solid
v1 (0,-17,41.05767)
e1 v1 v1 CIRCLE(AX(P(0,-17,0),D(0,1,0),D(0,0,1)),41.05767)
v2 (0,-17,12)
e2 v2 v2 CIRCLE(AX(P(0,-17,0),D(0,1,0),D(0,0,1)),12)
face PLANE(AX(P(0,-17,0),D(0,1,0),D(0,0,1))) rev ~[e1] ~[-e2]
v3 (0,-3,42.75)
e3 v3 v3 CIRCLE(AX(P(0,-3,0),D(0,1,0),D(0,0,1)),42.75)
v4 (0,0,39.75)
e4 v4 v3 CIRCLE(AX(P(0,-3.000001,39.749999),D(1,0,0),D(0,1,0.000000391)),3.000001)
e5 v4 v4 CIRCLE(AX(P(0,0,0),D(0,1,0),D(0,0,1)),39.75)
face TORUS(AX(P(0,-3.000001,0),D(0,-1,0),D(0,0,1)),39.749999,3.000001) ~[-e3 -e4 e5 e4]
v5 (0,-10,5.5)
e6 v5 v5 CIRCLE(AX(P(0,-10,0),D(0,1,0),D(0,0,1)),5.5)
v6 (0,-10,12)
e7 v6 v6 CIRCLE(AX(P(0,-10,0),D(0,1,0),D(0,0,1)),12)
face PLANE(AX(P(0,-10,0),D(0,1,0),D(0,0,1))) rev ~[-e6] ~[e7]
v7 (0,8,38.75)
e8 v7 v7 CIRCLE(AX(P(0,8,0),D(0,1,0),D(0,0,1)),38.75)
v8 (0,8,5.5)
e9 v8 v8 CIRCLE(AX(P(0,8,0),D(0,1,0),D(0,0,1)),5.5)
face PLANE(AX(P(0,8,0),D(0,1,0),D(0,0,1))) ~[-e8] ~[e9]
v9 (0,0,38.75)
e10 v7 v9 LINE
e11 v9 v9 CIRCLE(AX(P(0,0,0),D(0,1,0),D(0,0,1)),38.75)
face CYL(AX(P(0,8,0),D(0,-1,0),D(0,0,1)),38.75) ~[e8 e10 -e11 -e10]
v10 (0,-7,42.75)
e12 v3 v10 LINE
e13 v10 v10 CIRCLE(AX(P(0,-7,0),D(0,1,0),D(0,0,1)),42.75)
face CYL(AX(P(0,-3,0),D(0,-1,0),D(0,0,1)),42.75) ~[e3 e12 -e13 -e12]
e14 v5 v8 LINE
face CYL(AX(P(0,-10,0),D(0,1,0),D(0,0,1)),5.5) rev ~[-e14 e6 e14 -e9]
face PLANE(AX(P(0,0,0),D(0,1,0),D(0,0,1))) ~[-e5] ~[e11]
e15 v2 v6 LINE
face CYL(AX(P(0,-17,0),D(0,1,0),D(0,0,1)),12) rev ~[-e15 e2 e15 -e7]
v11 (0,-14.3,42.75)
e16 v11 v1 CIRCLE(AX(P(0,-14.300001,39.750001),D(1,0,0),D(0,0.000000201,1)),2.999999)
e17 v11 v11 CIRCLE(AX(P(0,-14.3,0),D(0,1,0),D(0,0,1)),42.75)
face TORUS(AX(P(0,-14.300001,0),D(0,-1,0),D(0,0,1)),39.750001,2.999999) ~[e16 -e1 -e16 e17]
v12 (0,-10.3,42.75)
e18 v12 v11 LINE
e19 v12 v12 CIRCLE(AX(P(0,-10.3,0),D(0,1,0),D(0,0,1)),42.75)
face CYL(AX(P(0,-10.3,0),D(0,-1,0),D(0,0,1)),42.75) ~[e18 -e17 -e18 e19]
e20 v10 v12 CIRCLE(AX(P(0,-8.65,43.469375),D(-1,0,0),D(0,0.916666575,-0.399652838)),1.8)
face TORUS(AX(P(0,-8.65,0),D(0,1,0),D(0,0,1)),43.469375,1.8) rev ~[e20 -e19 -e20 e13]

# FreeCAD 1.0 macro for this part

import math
import FreeCAD as App
import Part
import Sketcher

V = App.Vector
Q = App.Units.Quantity

doc = App.newDocument("Part")
body = doc.addObject("PartDesign::Body", "Body")

# Sketch on YZ plane
sketch1 = body.newObject("Sketcher::SketchObject", "Sketch")
sketch1.AttachmentSupport = (doc.getObject("YZ_Plane"), [""])
sketch1.MapMode = "FlatFace"
sketch1.addGeometry(Part.LineSegment(V(8, 38.75, 0), V(0, 38.75, 0)), False)
sketch1.addGeometry(Part.LineSegment(V(0, 38.75, 0), V(0, 39.75, 0)), False)
sketch1.addGeometry(Part.ArcOfCircle(Part.Circle(V(-3.000001, 39.749999, 0), V(0, 0, 1), 3.000001), math.radians(0.000022), math.radians(89.999978)), False)
sketch1.addGeometry(Part.LineSegment(V(-3, 42.75, 0), V(-7, 42.75, 0)), False)
sketch1.addGeometry(Part.ArcOfCircle(Part.Circle(V(-8.65, 43.469375, 0), V(0, 0, 1), 1.8), math.radians(-156.443522), math.radians(-23.556478)), False)
sketch1.addGeometry(Part.LineSegment(V(-10.3, 42.75, 0), V(-14.3, 42.75, 0)), False)
sketch1.addGeometry(Part.ArcOfCircle(Part.Circle(V(-14.300001, 39.750001, 0), V(0, 0, 1), 2.999999), math.radians(89.999988), math.radians(154.158069)), False)
sketch1.addGeometry(Part.LineSegment(V(-17, 41.05767, 0), V(-17, 12, 0)), False)
sketch1.addGeometry(Part.LineSegment(V(-17, 12, 0), V(-10, 12, 0)), False)
sketch1.addGeometry(Part.LineSegment(V(-10, 12, 0), V(-10, 5.5, 0)), False)
sketch1.addGeometry(Part.LineSegment(V(-10, 5.5, 0), V(8, 5.5, 0)), False)
sketch1.addGeometry(Part.LineSegment(V(8, 5.5, 0), V(8, 38.75, 0)), False)
sketch1.addConstraint(Sketcher.Constraint("Coincident", 0, 2, 1, 1))
sketch1.addConstraint(Sketcher.Constraint("Tangent", 1, 2, 2, 1))
sketch1.addConstraint(Sketcher.Constraint("Tangent", 2, 2, 3, 1))
sketch1.addConstraint(Sketcher.Constraint("Coincident", 3, 2, 4, 2))
sketch1.addConstraint(Sketcher.Constraint("Coincident", 4, 1, 5, 1))
sketch1.addConstraint(Sketcher.Constraint("Tangent", 5, 2, 6, 1))
sketch1.addConstraint(Sketcher.Constraint("Coincident", 6, 2, 7, 1))
sketch1.addConstraint(Sketcher.Constraint("Coincident", 7, 2, 8, 1))
sketch1.addConstraint(Sketcher.Constraint("Coincident", 8, 2, 9, 1))
sketch1.addConstraint(Sketcher.Constraint("Coincident", 9, 2, 10, 1))
sketch1.addConstraint(Sketcher.Constraint("Coincident", 10, 2, 11, 1))
sketch1.addConstraint(Sketcher.Constraint("Coincident", 11, 2, 0, 1))
sketch1.addConstraint(Sketcher.Constraint("Horizontal", 0))
sketch1.addConstraint(Sketcher.Constraint("Vertical", 1))
sketch1.addConstraint(Sketcher.Constraint("Horizontal", 3))
sketch1.addConstraint(Sketcher.Constraint("Horizontal", 5))
sketch1.addConstraint(Sketcher.Constraint("Vertical", 7))
sketch1.addConstraint(Sketcher.Constraint("Horizontal", 8))
sketch1.addConstraint(Sketcher.Constraint("Vertical", 9))
sketch1.addConstraint(Sketcher.Constraint("Horizontal", 10))
sketch1.addConstraint(Sketcher.Constraint("Vertical", 11))
sketch1.addConstraint(Sketcher.Constraint("Equal", 2, 6))
sketch1.addConstraint(Sketcher.Constraint("PointOnObject", 0, 2, -2))
sketch1.addConstraint(Sketcher.Constraint("Horizontal", 2, 3, 6, 3))
sketch1.addConstraint(Sketcher.Constraint("Equal", 3, 5))
sketch1.addConstraint(Sketcher.Constraint("Radius", 2, Q("3.000001 mm")))
sketch1.addConstraint(Sketcher.Constraint("Radius", 4, Q("1.8 mm")))
sketch1.addConstraint(Sketcher.Constraint("DistanceX", 0, 2, 0, 1, Q("8 mm")))
sketch1.addConstraint(Sketcher.Constraint("DistanceX", 3, 2, 3, 1, Q("4 mm")))
sketch1.addConstraint(Sketcher.Constraint("DistanceX", 8, 1, 8, 2, Q("7 mm")))
sketch1.addConstraint(Sketcher.Constraint("DistanceX", 10, 1, 10, 2, Q("18 mm")))
sketch1.addConstraint(Sketcher.Constraint("DistanceY", 1, 1, 1, 2, Q("1 mm")))
sketch1.addConstraint(Sketcher.Constraint("DistanceY", 9, 2, 9, 1, Q("6.5 mm")))
sketch1.addConstraint(Sketcher.Constraint("DistanceY", -1, 1, 7, 2, Q("12 mm")))
sketch1.addConstraint(Sketcher.Constraint("DistanceY", 11, 1, 11, 2, Q("33.25 mm")))
sketch1.addConstraint(Sketcher.Constraint("DistanceX", 6, 3, -1, 1, Q("14.300001 mm")))
revolution = body.newObject("PartDesign::Revolution", "Revolution")
revolution.Profile = sketch1
revolution.ReferenceAxis = (sketch1, ["H_Axis"])
revolution.Angle = 360

doc.recompute()
